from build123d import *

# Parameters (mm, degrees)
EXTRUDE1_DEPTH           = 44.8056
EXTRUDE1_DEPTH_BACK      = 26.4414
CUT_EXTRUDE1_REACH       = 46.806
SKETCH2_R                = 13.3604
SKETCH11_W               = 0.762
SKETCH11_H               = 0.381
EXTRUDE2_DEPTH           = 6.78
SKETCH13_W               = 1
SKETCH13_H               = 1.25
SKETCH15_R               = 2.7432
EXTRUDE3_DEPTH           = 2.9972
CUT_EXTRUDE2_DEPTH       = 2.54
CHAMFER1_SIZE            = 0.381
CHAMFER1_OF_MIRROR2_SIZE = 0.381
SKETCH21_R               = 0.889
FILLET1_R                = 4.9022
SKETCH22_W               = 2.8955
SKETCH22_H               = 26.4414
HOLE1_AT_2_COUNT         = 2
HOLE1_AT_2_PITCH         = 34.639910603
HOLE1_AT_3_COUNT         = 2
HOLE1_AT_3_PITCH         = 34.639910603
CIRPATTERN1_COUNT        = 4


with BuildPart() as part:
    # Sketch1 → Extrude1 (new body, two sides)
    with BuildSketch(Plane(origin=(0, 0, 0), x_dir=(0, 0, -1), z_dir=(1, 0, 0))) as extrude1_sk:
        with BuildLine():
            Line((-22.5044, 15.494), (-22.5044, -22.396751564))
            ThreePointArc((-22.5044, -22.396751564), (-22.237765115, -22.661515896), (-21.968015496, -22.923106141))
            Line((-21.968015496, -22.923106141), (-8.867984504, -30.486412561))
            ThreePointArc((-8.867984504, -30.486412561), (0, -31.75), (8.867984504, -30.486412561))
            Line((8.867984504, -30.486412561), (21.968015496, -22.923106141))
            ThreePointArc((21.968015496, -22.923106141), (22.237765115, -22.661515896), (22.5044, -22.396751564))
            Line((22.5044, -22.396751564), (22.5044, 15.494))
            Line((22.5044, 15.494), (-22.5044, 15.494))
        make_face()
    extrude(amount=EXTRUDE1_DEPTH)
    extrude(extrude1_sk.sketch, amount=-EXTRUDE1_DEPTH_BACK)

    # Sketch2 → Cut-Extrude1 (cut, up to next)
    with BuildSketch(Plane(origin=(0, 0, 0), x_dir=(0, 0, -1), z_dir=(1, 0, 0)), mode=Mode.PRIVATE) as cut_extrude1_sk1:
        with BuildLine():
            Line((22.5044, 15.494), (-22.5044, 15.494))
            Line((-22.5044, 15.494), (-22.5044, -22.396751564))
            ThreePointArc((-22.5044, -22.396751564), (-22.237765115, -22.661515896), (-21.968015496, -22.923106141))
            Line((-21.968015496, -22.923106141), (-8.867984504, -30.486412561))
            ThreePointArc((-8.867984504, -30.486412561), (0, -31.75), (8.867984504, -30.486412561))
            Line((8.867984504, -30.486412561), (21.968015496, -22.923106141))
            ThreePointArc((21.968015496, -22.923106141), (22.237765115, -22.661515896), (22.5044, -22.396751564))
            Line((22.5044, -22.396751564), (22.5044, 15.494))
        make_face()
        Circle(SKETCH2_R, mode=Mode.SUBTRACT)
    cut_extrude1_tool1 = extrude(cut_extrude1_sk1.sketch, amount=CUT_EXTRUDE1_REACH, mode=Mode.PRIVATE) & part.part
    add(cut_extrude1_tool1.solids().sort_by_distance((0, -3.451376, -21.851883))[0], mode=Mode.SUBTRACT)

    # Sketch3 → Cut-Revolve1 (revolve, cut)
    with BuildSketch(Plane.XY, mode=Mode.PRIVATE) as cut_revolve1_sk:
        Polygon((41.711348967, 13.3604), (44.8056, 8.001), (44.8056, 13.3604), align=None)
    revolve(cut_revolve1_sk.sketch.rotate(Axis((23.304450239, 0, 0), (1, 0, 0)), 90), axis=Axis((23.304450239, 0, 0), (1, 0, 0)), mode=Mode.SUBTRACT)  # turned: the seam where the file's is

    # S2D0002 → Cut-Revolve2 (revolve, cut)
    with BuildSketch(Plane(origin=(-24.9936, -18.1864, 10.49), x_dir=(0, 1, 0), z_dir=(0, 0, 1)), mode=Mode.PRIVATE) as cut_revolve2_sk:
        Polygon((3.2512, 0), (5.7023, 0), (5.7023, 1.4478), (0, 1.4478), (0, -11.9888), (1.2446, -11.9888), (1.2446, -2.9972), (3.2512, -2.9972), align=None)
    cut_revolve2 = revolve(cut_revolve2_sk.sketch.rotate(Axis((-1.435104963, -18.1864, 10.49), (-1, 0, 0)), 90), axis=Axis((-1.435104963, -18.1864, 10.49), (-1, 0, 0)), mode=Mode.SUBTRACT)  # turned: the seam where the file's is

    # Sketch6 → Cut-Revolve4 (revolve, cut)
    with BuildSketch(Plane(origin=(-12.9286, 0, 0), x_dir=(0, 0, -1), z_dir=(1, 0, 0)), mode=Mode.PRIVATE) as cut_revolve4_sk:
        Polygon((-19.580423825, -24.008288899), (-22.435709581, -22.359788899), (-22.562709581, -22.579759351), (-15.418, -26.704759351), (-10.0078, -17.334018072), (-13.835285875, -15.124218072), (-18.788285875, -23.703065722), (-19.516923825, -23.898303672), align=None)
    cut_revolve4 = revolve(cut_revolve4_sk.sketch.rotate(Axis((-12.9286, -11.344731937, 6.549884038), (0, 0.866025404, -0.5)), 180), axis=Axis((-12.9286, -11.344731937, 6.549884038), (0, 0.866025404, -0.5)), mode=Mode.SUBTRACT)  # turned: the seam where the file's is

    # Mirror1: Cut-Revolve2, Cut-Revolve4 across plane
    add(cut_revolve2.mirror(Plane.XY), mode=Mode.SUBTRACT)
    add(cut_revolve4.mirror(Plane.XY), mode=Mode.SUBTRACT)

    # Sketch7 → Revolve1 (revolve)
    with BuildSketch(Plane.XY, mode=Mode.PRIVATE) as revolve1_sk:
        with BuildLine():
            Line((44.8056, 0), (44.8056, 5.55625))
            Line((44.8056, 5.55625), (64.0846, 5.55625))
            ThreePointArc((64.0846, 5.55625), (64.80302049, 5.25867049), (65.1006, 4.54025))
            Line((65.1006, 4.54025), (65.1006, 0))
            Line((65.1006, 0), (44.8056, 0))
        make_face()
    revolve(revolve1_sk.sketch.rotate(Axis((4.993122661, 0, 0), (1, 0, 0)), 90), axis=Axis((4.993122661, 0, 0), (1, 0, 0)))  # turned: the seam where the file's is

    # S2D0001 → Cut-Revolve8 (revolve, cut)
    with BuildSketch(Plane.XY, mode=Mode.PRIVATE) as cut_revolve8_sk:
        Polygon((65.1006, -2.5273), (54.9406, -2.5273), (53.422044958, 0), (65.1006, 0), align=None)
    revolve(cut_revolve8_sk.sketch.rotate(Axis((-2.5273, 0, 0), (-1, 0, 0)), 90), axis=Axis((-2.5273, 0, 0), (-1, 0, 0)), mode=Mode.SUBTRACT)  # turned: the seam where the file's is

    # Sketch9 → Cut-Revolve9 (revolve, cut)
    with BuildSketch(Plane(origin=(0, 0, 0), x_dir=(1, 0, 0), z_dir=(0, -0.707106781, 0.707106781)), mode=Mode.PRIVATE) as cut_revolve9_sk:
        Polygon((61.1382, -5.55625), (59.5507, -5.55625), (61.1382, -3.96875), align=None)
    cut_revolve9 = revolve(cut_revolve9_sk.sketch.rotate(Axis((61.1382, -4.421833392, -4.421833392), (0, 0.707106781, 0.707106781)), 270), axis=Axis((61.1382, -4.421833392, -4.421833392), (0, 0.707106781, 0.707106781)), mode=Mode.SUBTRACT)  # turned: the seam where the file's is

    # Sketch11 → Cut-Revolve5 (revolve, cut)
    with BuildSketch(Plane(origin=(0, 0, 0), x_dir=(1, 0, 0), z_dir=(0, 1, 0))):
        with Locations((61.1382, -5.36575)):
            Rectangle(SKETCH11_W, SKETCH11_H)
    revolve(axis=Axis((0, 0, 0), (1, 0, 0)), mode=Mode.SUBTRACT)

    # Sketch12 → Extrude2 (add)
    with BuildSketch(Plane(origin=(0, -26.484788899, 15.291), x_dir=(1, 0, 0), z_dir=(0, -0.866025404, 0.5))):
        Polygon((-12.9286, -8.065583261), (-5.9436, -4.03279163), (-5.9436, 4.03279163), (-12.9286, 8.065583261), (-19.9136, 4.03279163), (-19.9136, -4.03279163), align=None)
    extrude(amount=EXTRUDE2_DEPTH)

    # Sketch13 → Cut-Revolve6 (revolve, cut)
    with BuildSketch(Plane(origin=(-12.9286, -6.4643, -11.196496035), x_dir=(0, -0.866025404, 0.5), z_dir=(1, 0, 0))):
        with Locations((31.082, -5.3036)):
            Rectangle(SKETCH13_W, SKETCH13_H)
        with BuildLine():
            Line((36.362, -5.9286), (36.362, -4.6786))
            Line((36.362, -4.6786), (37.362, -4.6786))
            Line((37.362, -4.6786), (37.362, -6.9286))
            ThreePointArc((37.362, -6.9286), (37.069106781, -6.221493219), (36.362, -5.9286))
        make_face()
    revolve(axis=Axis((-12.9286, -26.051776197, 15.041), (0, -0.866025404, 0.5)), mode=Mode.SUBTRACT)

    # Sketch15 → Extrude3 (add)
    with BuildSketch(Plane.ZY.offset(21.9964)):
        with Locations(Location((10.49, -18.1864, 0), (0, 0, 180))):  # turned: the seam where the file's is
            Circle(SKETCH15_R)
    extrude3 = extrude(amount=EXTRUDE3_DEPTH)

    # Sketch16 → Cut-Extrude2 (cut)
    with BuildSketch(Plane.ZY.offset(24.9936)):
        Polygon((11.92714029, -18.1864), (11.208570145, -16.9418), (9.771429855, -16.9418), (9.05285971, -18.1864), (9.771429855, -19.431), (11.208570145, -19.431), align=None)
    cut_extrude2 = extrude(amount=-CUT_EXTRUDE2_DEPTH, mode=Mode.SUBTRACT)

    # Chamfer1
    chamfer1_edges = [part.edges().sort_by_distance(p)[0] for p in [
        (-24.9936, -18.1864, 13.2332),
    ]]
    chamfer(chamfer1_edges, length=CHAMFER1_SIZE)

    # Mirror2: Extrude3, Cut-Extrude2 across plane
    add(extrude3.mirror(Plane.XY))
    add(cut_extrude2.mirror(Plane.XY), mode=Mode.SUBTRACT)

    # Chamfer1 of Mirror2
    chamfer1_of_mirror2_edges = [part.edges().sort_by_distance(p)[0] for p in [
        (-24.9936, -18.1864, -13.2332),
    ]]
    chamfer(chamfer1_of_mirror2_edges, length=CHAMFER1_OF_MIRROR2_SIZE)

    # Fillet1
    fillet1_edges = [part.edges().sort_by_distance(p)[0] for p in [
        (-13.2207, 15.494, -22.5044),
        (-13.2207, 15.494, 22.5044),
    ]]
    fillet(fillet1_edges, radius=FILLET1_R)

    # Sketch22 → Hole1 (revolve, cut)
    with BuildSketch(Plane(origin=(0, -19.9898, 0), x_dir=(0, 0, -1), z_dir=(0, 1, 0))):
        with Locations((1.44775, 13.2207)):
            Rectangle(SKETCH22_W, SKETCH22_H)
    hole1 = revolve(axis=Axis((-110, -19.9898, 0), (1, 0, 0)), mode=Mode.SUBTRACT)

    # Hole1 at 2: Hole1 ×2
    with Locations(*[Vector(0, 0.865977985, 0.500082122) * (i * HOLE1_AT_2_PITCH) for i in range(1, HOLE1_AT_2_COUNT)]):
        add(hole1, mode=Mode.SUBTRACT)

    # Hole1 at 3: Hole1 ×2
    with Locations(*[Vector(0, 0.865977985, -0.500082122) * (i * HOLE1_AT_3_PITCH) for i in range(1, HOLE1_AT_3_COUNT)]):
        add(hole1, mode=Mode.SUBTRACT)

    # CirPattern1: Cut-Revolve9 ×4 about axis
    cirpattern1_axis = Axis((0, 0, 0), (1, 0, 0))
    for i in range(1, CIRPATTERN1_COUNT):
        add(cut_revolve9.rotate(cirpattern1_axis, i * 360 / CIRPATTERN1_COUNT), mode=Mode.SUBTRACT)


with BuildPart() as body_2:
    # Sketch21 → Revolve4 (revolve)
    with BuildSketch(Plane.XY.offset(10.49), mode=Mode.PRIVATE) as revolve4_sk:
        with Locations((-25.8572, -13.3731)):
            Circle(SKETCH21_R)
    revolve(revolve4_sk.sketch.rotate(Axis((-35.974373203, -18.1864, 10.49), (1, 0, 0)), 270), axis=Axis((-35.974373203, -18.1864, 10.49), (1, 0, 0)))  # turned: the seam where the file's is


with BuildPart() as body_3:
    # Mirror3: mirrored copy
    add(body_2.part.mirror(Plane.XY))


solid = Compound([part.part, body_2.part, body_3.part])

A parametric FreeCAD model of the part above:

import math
import FreeCAD as App
import Part
import Sketcher
Q = App.Units.Quantity


def edges_at(feature, points):
    """Names of the edges that pass closest to the given points."""
    edges = feature.Shape.Edges
    near = lambda p: min(range(len(edges)), key=lambda i: edges[i].distToShape(Part.Vertex(*p))[0])
    return sorted({f"Edge{near(p) + 1}" for p in points})

doc = App.newDocument("Part")
body = doc.addObject("PartDesign::Body", "Body")

# Sketch on YZ plane
sketch1 = body.newObject("Sketcher::SketchObject", "Sketch")
sketch1.AttachmentSupport = (doc.getObject("YZ_Plane"), [""])
sketch1.MapMode = "FlatFace"
sketch1.addGeometry(Part.LineSegment(App.Vector(15.494, 22.5044, 0), App.Vector(-22.396752, 22.5044, 0)), False)
sketch1.addGeometry(Part.ArcOfCircle(Part.Circle(App.Vector(-0.000005, 0.000005, 0), App.Vector(0, 0, 1), 31.749993), math.radians(134.862636), math.radians(136.218825)), False)
sketch1.addGeometry(Part.LineSegment(App.Vector(-22.923106, 21.968015, 0), App.Vector(-30.486413, 8.867985, 0)), False)
sketch1.addGeometry(Part.ArcOfCircle(Part.Circle(App.Vector(0, 0, 0), App.Vector(0, 0, 1), 31.75), math.radians(163.781175), math.radians(196.218825)), False)
sketch1.addGeometry(Part.LineSegment(App.Vector(-30.486413, -8.867985, 0), App.Vector(-22.923106, -21.968015, 0)), False)
sketch1.addGeometry(Part.ArcOfCircle(Part.Circle(App.Vector(-0.000005, -0.000005, 0), App.Vector(0, 0, 1), 31.749993), math.radians(-136.218825), math.radians(-134.862636)), False)
sketch1.addGeometry(Part.LineSegment(App.Vector(-22.396752, -22.5044, 0), App.Vector(15.494, -22.5044, 0)), False)
sketch1.addGeometry(Part.LineSegment(App.Vector(15.494, -22.5044, 0), App.Vector(15.494, 22.5044, 0)), False)
sketch1.addConstraint(Sketcher.Constraint("Coincident", 0, 2, 1, 1))
sketch1.addConstraint(Sketcher.Constraint("Coincident", 1, 2, 2, 1))
sketch1.addConstraint(Sketcher.Constraint("Coincident", 2, 2, 3, 1))
sketch1.addConstraint(Sketcher.Constraint("Coincident", 3, 2, 4, 1))
sketch1.addConstraint(Sketcher.Constraint("Coincident", 4, 2, 5, 1))
sketch1.addConstraint(Sketcher.Constraint("Coincident", 5, 2, 6, 1))
sketch1.addConstraint(Sketcher.Constraint("Coincident", 6, 2, 7, 1))
sketch1.addConstraint(Sketcher.Constraint("Coincident", 7, 2, 0, 1))
sketch1.addConstraint(Sketcher.Constraint("Horizontal", 0))
sketch1.addConstraint(Sketcher.Constraint("Horizontal", 6))
sketch1.addConstraint(Sketcher.Constraint("Vertical", 7))
sketch1.addConstraint(Sketcher.Constraint("Coincident", 1, 3, -1, 1))
sketch1.addConstraint(Sketcher.Constraint("Coincident", 3, 3, -1, 1))
sketch1.addConstraint(Sketcher.Constraint("Coincident", 5, 3, -1, 1))
sketch1.addConstraint(Sketcher.Constraint("Radius", 3, Q("1.25 in")))
sketch1.addConstraint(Sketcher.Constraint("DistanceY", 7, 1, 7, 2, Q("1.772 in")))
sketch1.addConstraint(Sketcher.Constraint("DistanceX", -1, 1, 6, 2, Q("0.61 in")))
sketch1.addConstraint(Sketcher.Constraint("DistanceY", -1, 1, 0, 2, Q("0.886 in")))
sketch1.addConstraint(Sketcher.Constraint("Radius", 1, 31.749993))
sketch1.addConstraint(Sketcher.Constraint("Radius", 5, 31.749993))
sketch1.addConstraint(Sketcher.Constraint("DistanceX", 1, 2, 1, 3, 22.923101))
sketch1.addConstraint(Sketcher.Constraint("DistanceY", 3, 2, 1, 2, 30.836))
sketch1.addConstraint(Sketcher.Constraint("DistanceX", 4, 2, 5, 3, 22.923101))
sketch1.addConstraint(Sketcher.Constraint("DistanceY", 4, 2, 2, 2, 30.836))
pad1 = body.newObject("PartDesign::Pad", "Pad")
pad1.Profile = sketch1
pad1.Type = "TwoLengths"
pad1.Length = Q("1.764 in")
pad1.Length2 = Q("1.041 in")

# Sketch on YZ plane
sketch2 = body.newObject("Sketcher::SketchObject", "Sketch001")
sketch2.AttachmentSupport = (doc.getObject("YZ_Plane"), [""])
sketch2.MapMode = "FlatFace"
sketch2.addGeometry(Part.LineSegment(App.Vector(15.494, -22.5044, 0), App.Vector(15.494, 22.5044, 0)), False)
sketch2.addGeometry(Part.LineSegment(App.Vector(15.494, 22.5044, 0), App.Vector(-22.396752, 22.5044, 0)), False)
sketch2.addGeometry(Part.ArcOfCircle(Part.Circle(App.Vector(-0.000005, 0.000005, 0), App.Vector(0, 0, 1), 31.749993), math.radians(134.862636), math.radians(136.218825)), False)
sketch2.addGeometry(Part.LineSegment(App.Vector(-22.923106, 21.968015, 0), App.Vector(-30.486413, 8.867985, 0)), False)
sketch2.addGeometry(Part.ArcOfCircle(Part.Circle(App.Vector(0, 0, 0), App.Vector(0, 0, 1), 31.75), math.radians(163.781175), math.radians(196.218825)), False)
sketch2.addGeometry(Part.LineSegment(App.Vector(-30.486413, -8.867985, 0), App.Vector(-22.923106, -21.968015, 0)), False)
sketch2.addGeometry(Part.ArcOfCircle(Part.Circle(App.Vector(-0.000005, -0.000005, 0), App.Vector(0, 0, 1), 31.749993), math.radians(-136.218825), math.radians(-134.862636)), False)
sketch2.addGeometry(Part.LineSegment(App.Vector(-22.396752, -22.5044, 0), App.Vector(15.494, -22.5044, 0)), False)
sketch2.addGeometry(Part.Circle(App.Vector(0, 0, 0), App.Vector(0, 0, 1), 13.3604), False)
sketch2.addConstraint(Sketcher.Constraint("Coincident", 0, 2, 1, 1))
sketch2.addConstraint(Sketcher.Constraint("Coincident", 1, 2, 2, 1))
sketch2.addConstraint(Sketcher.Constraint("Coincident", 2, 2, 3, 1))
sketch2.addConstraint(Sketcher.Constraint("Coincident", 3, 2, 4, 1))
sketch2.addConstraint(Sketcher.Constraint("Coincident", 4, 2, 5, 1))
sketch2.addConstraint(Sketcher.Constraint("Coincident", 5, 2, 6, 1))
sketch2.addConstraint(Sketcher.Constraint("Coincident", 6, 2, 7, 1))
sketch2.addConstraint(Sketcher.Constraint("Coincident", 7, 2, 0, 1))
sketch2.addConstraint(Sketcher.Constraint("Vertical", 0))
sketch2.addConstraint(Sketcher.Constraint("Horizontal", 1))
sketch2.addConstraint(Sketcher.Constraint("Horizontal", 7))
sketch2.addConstraint(Sketcher.Constraint("Coincident", 2, 3, -1, 1))
sketch2.addConstraint(Sketcher.Constraint("Coincident", 4, 3, -1, 1))
sketch2.addConstraint(Sketcher.Constraint("Coincident", 6, 3, -1, 1))
sketch2.addConstraint(Sketcher.Constraint("Coincident", 8, 3, -1, 1))
sketch2.addConstraint(Sketcher.Constraint("Radius", 4, Q("1.25 in")))
sketch2.addConstraint(Sketcher.Constraint("Diameter", 8, Q("1.052 in")))
sketch2.addConstraint(Sketcher.Constraint("DistanceY", 0, 1, 0, 2, Q("1.772 in")))
sketch2.addConstraint(Sketcher.Constraint("DistanceX", -1, 1, 0, 2, Q("0.61 in")))
sketch2.addConstraint(Sketcher.Constraint("DistanceY", -1, 1, 0, 2, Q("0.886 in")))
sketch2.addConstraint(Sketcher.Constraint("Radius", 2, 31.749993))
sketch2.addConstraint(Sketcher.Constraint("Radius", 6, 31.749993))
sketch2.addConstraint(Sketcher.Constraint("DistanceX", 2, 2, 2, 3, 22.923101))
sketch2.addConstraint(Sketcher.Constraint("DistanceY", 4, 2, 2, 2, 30.836))
sketch2.addConstraint(Sketcher.Constraint("DistanceX", 5, 2, 6, 3, 22.923101))
sketch2.addConstraint(Sketcher.Constraint("DistanceY", 5, 2, 3, 2, 30.836))
pocket1 = body.newObject("PartDesign::Pocket", "Pocket")
pocket1.Profile = sketch2
pocket1.Type = "UpToFirst"
pocket1.Reversed = True

# Sketch on XY plane
sketch3 = body.newObject("Sketcher::SketchObject", "Sketch002")
sketch3.AttachmentSupport = (doc.getObject("XY_Plane"), [""])
sketch3.MapMode = "FlatFace"
sketch3.addGeometry(Part.LineSegment(App.Vector(41.7, 13.4, 0), App.Vector(44.8, 8, 0)), False)
sketch3.addGeometry(Part.LineSegment(App.Vector(44.8, 8, 0), App.Vector(44.8, 13.4, 0)), False)
sketch3.addGeometry(Part.LineSegment(App.Vector(44.8, 13.4, 0), App.Vector(41.7, 13.4, 0)), False)
sketch3.addConstraint(Sketcher.Constraint("Coincident", 0, 2, 1, 1))
sketch3.addConstraint(Sketcher.Constraint("Coincident", 1, 2, 2, 1))
sketch3.addConstraint(Sketcher.Constraint("Coincident", 2, 2, 0, 1))
sketch3.addConstraint(Sketcher.Constraint("Vertical", 1))
sketch3.addConstraint(Sketcher.Constraint("Horizontal", 2))
sketch3.addConstraint(Sketcher.Constraint("Angle", 0, Q("-60 deg")))
sketch3.addConstraint(Sketcher.Constraint("DistanceY", 1, 1, 1, 2, Q("0.211 in")))
sketch3.addConstraint(Sketcher.Constraint("DistanceX", -1, 1, 0, 2, Q("1.764 in")))
sketch3.addConstraint(Sketcher.Constraint("DistanceY", -1, 1, 0, 2, Q("0.315 in")))
groove = body.newObject("PartDesign::Groove", "Groove")
groove.Profile = sketch3
groove.ReferenceAxis = (sketch3, ["H_Axis"])
groove.Angle = 360

# Sketch on XY plane
sketch4 = body.newObject("Sketcher::SketchObject", "Sketch003")
sketch4.AttachmentSupport = (doc.getObject("XY_Plane"), [""])
sketch4.MapMode = "FlatFace"
sketch4.AttachmentOffset = App.Placement(App.Vector(0, 0, 10.49), App.Rotation())
sketch4.addGeometry(Part.LineSegment(App.Vector(-25, -14.9, 0), App.Vector(-25, -12.5, 0)), False)
sketch4.addGeometry(Part.LineSegment(App.Vector(-25, -12.5, 0), App.Vector(-26.4, -12.5, 0)), False)
sketch4.addGeometry(Part.LineSegment(App.Vector(-26.4, -12.5, 0), App.Vector(-26.4, -18.2, 0)), False)
sketch4.addGeometry(Part.LineSegment(App.Vector(-26.4, -18.2, 0), App.Vector(-13, -18.2, 0)), False)
sketch4.addGeometry(Part.LineSegment(App.Vector(-13, -18.2, 0), App.Vector(-13, -16.9, 0)), False)
sketch4.addGeometry(Part.LineSegment(App.Vector(-13, -16.9, 0), App.Vector(-22, -16.9, 0)), False)
sketch4.addGeometry(Part.LineSegment(App.Vector(-22, -16.9, 0), App.Vector(-22, -14.9, 0)), False)
sketch4.addGeometry(Part.LineSegment(App.Vector(-22, -14.9, 0), App.Vector(-25, -14.9, 0)), False)
sketch4.addGeometry(Part.LineSegment(App.Vector(-13, -18.2, 0), App.Vector(-26.4, -18.2, 0)), True)  # axis
sketch4.addConstraint(Sketcher.Constraint("Coincident", 0, 2, 1, 1))
sketch4.addConstraint(Sketcher.Constraint("Coincident", 1, 2, 2, 1))
sketch4.addConstraint(Sketcher.Constraint("Coincident", 2, 2, 3, 1))
sketch4.addConstraint(Sketcher.Constraint("Coincident", 3, 2, 4, 1))
sketch4.addConstraint(Sketcher.Constraint("Coincident", 4, 2, 5, 1))
sketch4.addConstraint(Sketcher.Constraint("Coincident", 5, 2, 6, 1))
sketch4.addConstraint(Sketcher.Constraint("Coincident", 6, 2, 7, 1))
sketch4.addConstraint(Sketcher.Constraint("Coincident", 7, 2, 0, 1))
sketch4.addConstraint(Sketcher.Constraint("Vertical", 0))
sketch4.addConstraint(Sketcher.Constraint("Horizontal", 1))
sketch4.addConstraint(Sketcher.Constraint("Vertical", 2))
sketch4.addConstraint(Sketcher.Constraint("Horizontal", 3))
sketch4.addConstraint(Sketcher.Constraint("Vertical", 4))
sketch4.addConstraint(Sketcher.Constraint("Horizontal", 5))
sketch4.addConstraint(Sketcher.Constraint("Vertical", 6))
sketch4.addConstraint(Sketcher.Constraint("Horizontal", 7))
sketch4.addConstraint(Sketcher.Constraint("Horizontal", 8))
sketch4.addConstraint(Sketcher.Constraint("Coincident", 8, 1, 3, 2))
sketch4.addConstraint(Sketcher.Constraint("Vertical", 1, 2, 8, 2))
sketch4.addConstraint(Sketcher.Constraint("DistanceX", 1, 2, 1, 1, Q("0.057 in")))
sketch4.addConstraint(Sketcher.Constraint("DistanceX", 3, 1, 3, 2, Q("0.529 in")))
sketch4.addConstraint(Sketcher.Constraint("DistanceX", 5, 2, 5, 1, Q("0.354 in")))
sketch4.addConstraint(Sketcher.Constraint("DistanceY", 4, 1, 4, 2, Q("0.049 in")))
sketch4.addConstraint(Sketcher.Constraint("DistanceY", 6, 1, 6, 2, Q("0.079 in")))
sketch4.addConstraint(Sketcher.Constraint("DistanceY", 0, 1, 0, 2, Q("0.0965 in")))
sketch4.addConstraint(Sketcher.Constraint("DistanceX", 0, 2, -1, 1, Q("0.984 in")))
sketch4.addConstraint(Sketcher.Constraint("DistanceY", 2, 2, -1, 1, Q("0.716 in")))
groove2 = body.newObject("PartDesign::Groove", "Groove001")
groove2.Profile = sketch4
groove2.ReferenceAxis = (sketch4, ["Axis0"])
groove2.Angle = 360

# Sketch on YZ plane
sketch5 = body.newObject("Sketcher::SketchObject", "Sketch004")
sketch5.AttachmentSupport = (doc.getObject("YZ_Plane"), [""])
sketch5.MapMode = "FlatFace"
sketch5.AttachmentOffset = App.Placement(App.Vector(0, 0, -0.509 * 25.4), App.Rotation())
sketch5.addGeometry(Part.LineSegment(App.Vector(-24.01, 19.58, 0), App.Vector(-22.36, 22.44, 0)), False)
sketch5.addGeometry(Part.LineSegment(App.Vector(-22.36, 22.44, 0), App.Vector(-22.58, 22.56, 0)), False)
sketch5.addGeometry(Part.LineSegment(App.Vector(-22.58, 22.56, 0), App.Vector(-26.7, 15.42, 0)), False)
sketch5.addGeometry(Part.LineSegment(App.Vector(-26.7, 15.42, 0), App.Vector(-17.33, 10.01, 0)), False)
sketch5.addGeometry(Part.LineSegment(App.Vector(-17.33, 10.01, 0), App.Vector(-15.12, 13.84, 0)), False)
sketch5.addGeometry(Part.LineSegment(App.Vector(-15.12, 13.84, 0), App.Vector(-23.7, 18.79, 0)), False)
sketch5.addGeometry(Part.LineSegment(App.Vector(-23.7, 18.79, 0), App.Vector(-23.9, 19.52, 0)), False)
sketch5.addGeometry(Part.LineSegment(App.Vector(-23.9, 19.52, 0), App.Vector(-24.01, 19.58, 0)), False)
sketch5.addGeometry(Part.LineSegment(App.Vector(-26.7, 15.42, 0), App.Vector(-17.33, 10.01, 0)), True)  # axis
sketch5.addConstraint(Sketcher.Constraint("Coincident", 0, 2, 1, 1))
sketch5.addConstraint(Sketcher.Constraint("Coincident", 1, 2, 2, 1))
sketch5.addConstraint(Sketcher.Constraint("Coincident", 2, 2, 3, 1))
sketch5.addConstraint(Sketcher.Constraint("Coincident", 3, 2, 4, 1))
sketch5.addConstraint(Sketcher.Constraint("Coincident", 4, 2, 5, 1))
sketch5.addConstraint(Sketcher.Constraint("Coincident", 5, 2, 6, 1))
sketch5.addConstraint(Sketcher.Constraint("Coincident", 6, 2, 7, 1))
sketch5.addConstraint(Sketcher.Constraint("Coincident", 7, 2, 0, 1))
sketch5.addConstraint(Sketcher.Constraint("Coincident", 8, 1, 2, 2))
sketch5.addConstraint(Sketcher.Constraint("Coincident", 8, 2, 3, 2))
sketch5.addConstraint(Sketcher.Constraint("Perpendicular", 0, 1))
sketch5.addConstraint(Sketcher.Constraint("Perpendicular", 1, 2))
sketch5.addConstraint(Sketcher.Constraint("Perpendicular", 2, 3))
sketch5.addConstraint(Sketcher.Constraint("Perpendicular", 3, 4))
sketch5.addConstraint(Sketcher.Constraint("Perpendicular", 4, 5))
sketch5.addConstraint(Sketcher.Constraint("Parallel", 5, 7))
sketch5.addConstraint(Sketcher.Constraint("Angle", 0, Q("60 deg")))
sketch5.addConstraint(Sketcher.Constraint("Angle", 6, Q("105 deg")))
sketch5.addConstraint(Sketcher.Constraint("Distance", 1, Q("0.01 in")))
sketch5.addConstraint(Sketcher.Constraint("Distance", 5, Q("0.39 in")))
sketch5.addConstraint(Sketcher.Constraint("Distance", 3, Q("0.426 in")))
sketch5.addConstraint(Sketcher.Constraint("Distance", 4, Q("0.174 in")))
sketch5.addConstraint(Sketcher.Constraint("Distance", 7, Q("0.005 in")))
sketch5.addConstraint(Sketcher.Constraint("Distance", 0, 3.297))
sketch5.addConstraint(Sketcher.Constraint("DistanceY", -1, 1, 2, 2, 15.418))
sketch5.addConstraint(Sketcher.Constraint("DistanceX", 0, 2, -1, 1, 22.359789))
groove3 = body.newObject("PartDesign::Groove", "Groove002")
groove3.Profile = sketch5
groove3.ReferenceAxis = (sketch5, ["Axis0"])
groove3.Angle = 360
doc.recompute()

mirrored = body.newObject("PartDesign::Mirrored", "Mirrored")
mirrored.Originals = [groove2, groove3]
mirrored.MirrorPlane = (doc.getObject("XY_Plane"), [""])
body.Tip = mirrored

# Sketch on XY plane
sketch6 = body.newObject("Sketcher::SketchObject", "Sketch005")
sketch6.AttachmentSupport = (doc.getObject("XY_Plane"), [""])
sketch6.MapMode = "FlatFace"
sketch6.addGeometry(Part.LineSegment(App.Vector(44.8, 5.6, 0), App.Vector(44.8, 0, 0)), False)
sketch6.addGeometry(Part.LineSegment(App.Vector(44.8, 0, 0), App.Vector(65.1, 0, 0)), False)
sketch6.addGeometry(Part.LineSegment(App.Vector(65.1, 0, 0), App.Vector(65.1, 4.5, 0)), False)
sketch6.addGeometry(Part.ArcOfCircle(Part.Circle(App.Vector(64.1, 4.5, 0), App.Vector(0, 0, 1), 1), math.radians(0), math.radians(90)), False)
sketch6.addGeometry(Part.LineSegment(App.Vector(64.1, 5.6, 0), App.Vector(44.8, 5.6, 0)), False)
sketch6.addConstraint(Sketcher.Constraint("Coincident", 0, 2, 1, 1))
sketch6.addConstraint(Sketcher.Constraint("Coincident", 1, 2, 2, 1))
sketch6.addConstraint(Sketcher.Constraint("Tangent", 2, 2, 3, 1))
sketch6.addConstraint(Sketcher.Constraint("Tangent", 3, 2, 4, 1))
sketch6.addConstraint(Sketcher.Constraint("Coincident", 4, 2, 0, 1))
sketch6.addConstraint(Sketcher.Constraint("Vertical", 0))
sketch6.addConstraint(Sketcher.Constraint("Horizontal", 1))
sketch6.addConstraint(Sketcher.Constraint("Vertical", 2))
sketch6.addConstraint(Sketcher.Constraint("Horizontal", 4))
sketch6.addConstraint(Sketcher.Constraint("PointOnObject", 0, 2, -1))
sketch6.addConstraint(Sketcher.Constraint("Radius", 3, Q("0.04 in")))
sketch6.addConstraint(Sketcher.Constraint("DistanceY", 0, 2, 0, 1, Q("0.21875 in")))
sketch6.addConstraint(Sketcher.Constraint("DistanceX", -1, 1, 0, 2, Q("1.764 in")))
sketch6.addConstraint(Sketcher.Constraint("DistanceX", 1, 1, 1, 2, 20.295))
revolution = body.newObject("PartDesign::Revolution", "Revolution")
revolution.Profile = sketch6
revolution.ReferenceAxis = (sketch6, ["H_Axis"])
revolution.Angle = 360

# Sketch on XY plane
sketch7 = body.newObject("Sketcher::SketchObject", "Sketch006")
sketch7.AttachmentSupport = (doc.getObject("XY_Plane"), [""])
sketch7.MapMode = "FlatFace"
sketch7.addGeometry(Part.LineSegment(App.Vector(54.9, -2.5, 0), App.Vector(65.1, -2.5, 0)), False)
sketch7.addGeometry(Part.LineSegment(App.Vector(65.1, -2.5, 0), App.Vector(65.1, 0, 0)), False)
sketch7.addGeometry(Part.LineSegment(App.Vector(65.1, 0, 0), App.Vector(53.4, 0, 0)), False)
sketch7.addGeometry(Part.LineSegment(App.Vector(53.4, 0, 0), App.Vector(54.9, -2.5, 0)), False)
sketch7.addConstraint(Sketcher.Constraint("Coincident", 0, 2, 1, 1))
sketch7.addConstraint(Sketcher.Constraint("Coincident", 1, 2, 2, 1))
sketch7.addConstraint(Sketcher.Constraint("Coincident", 2, 2, 3, 1))
sketch7.addConstraint(Sketcher.Constraint("Coincident", 3, 2, 0, 1))
sketch7.addConstraint(Sketcher.Constraint("Horizontal", 0))
sketch7.addConstraint(Sketcher.Constraint("Vertical", 1))
sketch7.addConstraint(Sketcher.Constraint("Horizontal", 2))
sketch7.addConstraint(Sketcher.Constraint("PointOnObject", 1, 2, -1))
sketch7.addConstraint(Sketcher.Constraint("DistanceX", 0, 1, 0, 2, Q("0.4 in")))
sketch7.addConstraint(Sketcher.Constraint("Angle", 3, Q("-59 deg")))
sketch7.addConstraint(Sketcher.Constraint("DistanceY", 1, 1, 1, 2, Q("0.0995 in")))
sketch7.addConstraint(Sketcher.Constraint("DistanceX", -1, 1, 0, 2, 65.1006))
groove4 = body.newObject("PartDesign::Groove", "Groove003")
groove4.Profile = sketch7
groove4.ReferenceAxis = (sketch7, ["H_Axis"])
groove4.Angle = 360

# Sketch on an angled plane
sketch8 = body.newObject("Sketcher::SketchObject", "Sketch007")
sketch8.Placement = App.Placement(App.Vector(0, 0, 0), App.Rotation(App.Vector(1, 0, 0), App.Vector(0, 0.707106781, 0.707106781), App.Vector(0, -0.707106781, 0.707106781), "ZXY"))
sketch8.addGeometry(Part.LineSegment(App.Vector(59.6, -5.6, 0), App.Vector(61.1, -5.6, 0)), False)
sketch8.addGeometry(Part.LineSegment(App.Vector(61.1, -5.6, 0), App.Vector(61.1, -4, 0)), False)
sketch8.addGeometry(Part.LineSegment(App.Vector(61.1, -4, 0), App.Vector(59.6, -5.6, 0)), False)
sketch8.addGeometry(Part.LineSegment(App.Vector(61.1, -5.6, 0), App.Vector(61.1, -4, 0)), True)  # axis
sketch8.addConstraint(Sketcher.Constraint("Coincident", 0, 2, 1, 1))
sketch8.addConstraint(Sketcher.Constraint("Coincident", 1, 2, 2, 1))
sketch8.addConstraint(Sketcher.Constraint("Coincident", 2, 2, 0, 1))
sketch8.addConstraint(Sketcher.Constraint("Horizontal", 0))
sketch8.addConstraint(Sketcher.Constraint("Vertical", 1))
sketch8.addConstraint(Sketcher.Constraint("Vertical", 3))
sketch8.addConstraint(Sketcher.Constraint("Coincident", 3, 1, 0, 2))
sketch8.addConstraint(Sketcher.Constraint("Equal", 0, 1))
sketch8.addConstraint(Sketcher.Constraint("Equal", 1, 3))
sketch8.addConstraint(Sketcher.Constraint("DistanceX", 0, 1, 0, 2, Q("0.0625 in")))
sketch8.addConstraint(Sketcher.Constraint("DistanceY", 0, 2, -1, 1, Q("0.21875 in")))
sketch8.addConstraint(Sketcher.Constraint("DistanceX", -1, 1, 0, 2, 61.1382))
groove5 = body.newObject("PartDesign::Groove", "Groove004")
groove5.Profile = sketch8
groove5.ReferenceAxis = (sketch8, ["Axis0"])
groove5.Angle = 360

# Sketch on XZ plane
sketch9 = body.newObject("Sketcher::SketchObject", "Sketch008")
sketch9.AttachmentSupport = (doc.getObject("XZ_Plane"), [""])
sketch9.MapMode = "FlatFace"
sketch9.addGeometry(Part.LineSegment(App.Vector(60.76, 5.18, 0), App.Vector(60.76, 5.56, 0)), False)
sketch9.addGeometry(Part.LineSegment(App.Vector(60.76, 5.56, 0), App.Vector(61.52, 5.56, 0)), False)
sketch9.addGeometry(Part.LineSegment(App.Vector(61.52, 5.56, 0), App.Vector(61.52, 5.18, 0)), False)
sketch9.addGeometry(Part.LineSegment(App.Vector(61.52, 5.18, 0), App.Vector(60.76, 5.18, 0)), False)
sketch9.addConstraint(Sketcher.Constraint("Coincident", 0, 2, 1, 1))
sketch9.addConstraint(Sketcher.Constraint("Coincident", 1, 2, 2, 1))
sketch9.addConstraint(Sketcher.Constraint("Coincident", 2, 2, 3, 1))
sketch9.addConstraint(Sketcher.Constraint("Coincident", 3, 2, 0, 1))
sketch9.addConstraint(Sketcher.Constraint("Vertical", 0))
sketch9.addConstraint(Sketcher.Constraint("Horizontal", 1))
sketch9.addConstraint(Sketcher.Constraint("Vertical", 2))
sketch9.addConstraint(Sketcher.Constraint("Horizontal", 3))
sketch9.addConstraint(Sketcher.Constraint("DistanceX", 1, 1, 1, 2, Q("0.03 in")))
sketch9.addConstraint(Sketcher.Constraint("DistanceY", 0, 1, 0, 2, Q("0.015 in")))
sketch9.addConstraint(Sketcher.Constraint("DistanceY", -1, 1, 0, 2, Q("0.21875 in")))
sketch9.addConstraint(Sketcher.Constraint("DistanceX", -1, 1, 0, 2, 60.7572))
groove6 = body.newObject("PartDesign::Groove", "Groove005")
groove6.Profile = sketch9
groove6.ReferenceAxis = (sketch9, ["H_Axis"])
groove6.Angle = 360

# Sketch on an angled plane
sketch10 = body.newObject("Sketcher::SketchObject", "Sketch009")
sketch10.Placement = App.Placement(App.Vector(0, -26.484789, 15.291), App.Rotation(App.Vector(1, 0, 0), App.Vector(0, 0.5, 0.866025404), App.Vector(0, -0.866025404, 0.5), "ZXY"))
sketch10.addGeometry(Part.LineSegment(App.Vector(-13, -8, 0), App.Vector(-6, -4, 0)), False)
sketch10.addGeometry(Part.LineSegment(App.Vector(-6, -4, 0), App.Vector(-6, 4, 0)), False)
sketch10.addGeometry(Part.LineSegment(App.Vector(-6, 4, 0), App.Vector(-13, 8, 0)), False)
sketch10.addGeometry(Part.LineSegment(App.Vector(-13, 8, 0), App.Vector(-20, 4, 0)), False)
sketch10.addGeometry(Part.LineSegment(App.Vector(-20, 4, 0), App.Vector(-20, -4, 0)), False)
sketch10.addGeometry(Part.LineSegment(App.Vector(-20, -4, 0), App.Vector(-13, -8, 0)), False)
sketch10.addConstraint(Sketcher.Constraint("Coincident", 0, 2, 1, 1))
sketch10.addConstraint(Sketcher.Constraint("Coincident", 1, 2, 2, 1))
sketch10.addConstraint(Sketcher.Constraint("Coincident", 2, 2, 3, 1))
sketch10.addConstraint(Sketcher.Constraint("Coincident", 3, 2, 4, 1))
sketch10.addConstraint(Sketcher.Constraint("Coincident", 4, 2, 5, 1))
sketch10.addConstraint(Sketcher.Constraint("Coincident", 5, 2, 0, 1))
sketch10.addConstraint(Sketcher.Constraint("Vertical", 1))
sketch10.addConstraint(Sketcher.Constraint("Vertical", 4))
sketch10.addConstraint(Sketcher.Constraint("Symmetric", 2, 2, 5, 2, -1))
sketch10.addConstraint(Sketcher.Constraint("Parallel", 0, 3))
sketch10.addConstraint(Sketcher.Constraint("Parallel", 2, 5))
sketch10.addConstraint(Sketcher.Constraint("Horizontal", 1, 2, 3, 2))
sketch10.addConstraint(Sketcher.Constraint("Horizontal", 0, 2, 4, 2))
sketch10.addConstraint(Sketcher.Constraint("Angle", 0, Q("30 deg")))
sketch10.addConstraint(Sketcher.Constraint("DistanceX", 3, 2, 1, 2, Q("0.55 in")))
sketch10.addConstraint(Sketcher.Constraint("DistanceX", 0, 2, -1, 1, Q("0.234 in")))
sketch10.addConstraint(Sketcher.Constraint("DistanceY", 1, 1, 1, 2, 8.065583))
pad2 = body.newObject("PartDesign::Pad", "Pad001")
pad2.Profile = sketch10
pad2.Length = 6.78

# Sketch on YZ plane
sketch11 = body.newObject("Sketcher::SketchObject", "Sketch010")
sketch11.AttachmentSupport = (doc.getObject("YZ_Plane"), [""])
sketch11.MapMode = "FlatFace"
sketch11.AttachmentOffset = App.Placement(App.Vector(0, 0, -0.509 * 25.4), App.Rotation())
sketch11.addGeometry(Part.LineSegment(App.Vector(-30.6, 8.1, 0), App.Vector(-30, 9.2, 0)), False)
sketch11.addGeometry(Part.LineSegment(App.Vector(-30, 9.2, 0), App.Vector(-30.9, 9.7, 0)), False)
sketch11.addGeometry(Part.LineSegment(App.Vector(-30.9, 9.7, 0), App.Vector(-31.5, 8.6, 0)), False)
sketch11.addGeometry(Part.LineSegment(App.Vector(-31.5, 8.6, 0), App.Vector(-30.6, 8.1, 0)), False)
sketch11.addGeometry(Part.LineSegment(App.Vector(-35.6, 11, 0), App.Vector(-35, 12.1, 0)), False)
sketch11.addGeometry(Part.ArcOfCircle(Part.Circle(App.Vector(-34.5, 13, 0), App.Vector(0, 0, 1), 1), math.radians(150), math.radians(240)), False)
sketch11.addGeometry(Part.LineSegment(App.Vector(-35.4, 13.5, 0), App.Vector(-36.5, 11.5, 0)), False)
sketch11.addGeometry(Part.LineSegment(App.Vector(-36.5, 11.5, 0), App.Vector(-35.6, 11, 0)), False)
sketch11.addGeometry(Part.LineSegment(App.Vector(-26.5, 15.3, 0), App.Vector(-32.4, 18.7, 0)), True)  # axis
sketch11.addConstraint(Sketcher.Constraint("Coincident", 0, 2, 1, 1))
sketch11.addConstraint(Sketcher.Constraint("Coincident", 1, 2, 2, 1))
sketch11.addConstraint(Sketcher.Constraint("Coincident", 2, 2, 3, 1))
sketch11.addConstraint(Sketcher.Constraint("Coincident", 3, 2, 0, 1))
sketch11.addConstraint(Sketcher.Constraint("Coincident", 4, 2, 5, 2))
sketch11.addConstraint(Sketcher.Constraint("Tangent", 5, 1, 6, 1))
sketch11.addConstraint(Sketcher.Constraint("Coincident", 6, 2, 7, 1))
sketch11.addConstraint(Sketcher.Constraint("Coincident", 7, 2, 4, 1))
sketch11.addConstraint(Sketcher.Constraint("Perpendicular", 0, 1))
sketch11.addConstraint(Sketcher.Constraint("Perpendicular", 1, 2))
sketch11.addConstraint(Sketcher.Constraint("Perpendicular", 2, 3))
sketch11.addConstraint(Sketcher.Constraint("Perpendicular", 3, 4))
sketch11.addConstraint(Sketcher.Constraint("Parallel", 4, 6))
sketch11.addConstraint(Sketcher.Constraint("Perpendicular", 6, 7))
sketch11.addConstraint(Sketcher.Constraint("Parallel", 7, 8))
sketch11.addConstraint(Sketcher.Constraint("Equal", 2, 4))
sketch11.addConstraint(Sketcher.Constraint("Equal", 3, 7))
sketch11.addConstraint(Sketcher.Constraint("Angle", 0, Q("60 deg")))
sketch11.addConstraint(Sketcher.Constraint("Radius", 5, 1.0))
sketch11.addConstraint(Sketcher.Constraint("DistanceY", 7, 2, 5, 1, Q("0.0963999 in")))
sketch11.addConstraint(Sketcher.Constraint("Distance", 0, 1.25))
sketch11.addConstraint(Sketcher.Constraint("Distance", 8, 6.78))
sketch11.addConstraint(Sketcher.Constraint("DistanceY", -1, 1, 8, 1, 15.291))
sketch11.addConstraint(Sketcher.Constraint("DistanceX", 5, 3, 1, 2, 3.639601))
sketch11.addConstraint(Sketcher.Constraint("DistanceY", 1, 2, 4, 2, 2.39))
sketch11.addConstraint(Sketcher.Constraint("DistanceX", 0, 2, 8, 1, 3.5))
sketch11.addConstraint(Sketcher.Constraint("DistanceX", 0, 2, -1, 1, 29.984789))
sketch11.addConstraint(Sketcher.Constraint("DistanceY", -1, 1, 2, 2, 8.64629))
groove7 = body.newObject("PartDesign::Groove", "Groove006")
groove7.Profile = sketch11
groove7.ReferenceAxis = (sketch11, ["Axis0"])
groove7.Angle = 360

# Sketch on YZ plane
sketch12 = body.newObject("Sketcher::SketchObject", "Sketch011")
sketch12.AttachmentSupport = (doc.getObject("YZ_Plane"), [""])
sketch12.MapMode = "FlatFace"
sketch12.AttachmentOffset = App.Placement(App.Vector(0, 0, -0.866 * 25.4), App.Rotation())
sketch12.addGeometry(Part.Circle(App.Vector(-18.2, 10.5, 0), App.Vector(0, 0, 1), 2.7), False)
sketch12.addConstraint(Sketcher.Constraint("Diameter", 0, Q("0.216 in")))
sketch12.addConstraint(Sketcher.Constraint("DistanceX", 0, 3, -1, 1, Q("0.716 in")))
sketch12.addConstraint(Sketcher.Constraint("DistanceY", -1, 1, 0, 3, 10.49))
pad3 = body.newObject("PartDesign::Pad", "Pad002")
pad3.Profile = sketch12
pad3.Length = Q("0.118 in")
pad3.Reversed = True

# Sketch on YZ plane
sketch13 = body.newObject("Sketcher::SketchObject", "Sketch012")
sketch13.AttachmentSupport = (doc.getObject("YZ_Plane"), [""])
sketch13.MapMode = "FlatFace"
sketch13.AttachmentOffset = App.Placement(App.Vector(0, 0, -0.984 * 25.4), App.Rotation())
sketch13.addGeometry(Part.LineSegment(App.Vector(-18.2, 11.9, 0), App.Vector(-16.9, 11.2, 0)), False)
sketch13.addGeometry(Part.LineSegment(App.Vector(-16.9, 11.2, 0), App.Vector(-16.9, 9.8, 0)), False)
sketch13.addGeometry(Part.LineSegment(App.Vector(-16.9, 9.8, 0), App.Vector(-18.2, 9.1, 0)), False)
sketch13.addGeometry(Part.LineSegment(App.Vector(-18.2, 9.1, 0), App.Vector(-19.4, 9.8, 0)), False)
sketch13.addGeometry(Part.LineSegment(App.Vector(-19.4, 9.8, 0), App.Vector(-19.4, 11.2, 0)), False)
sketch13.addGeometry(Part.LineSegment(App.Vector(-19.4, 11.2, 0), App.Vector(-18.2, 11.9, 0)), False)
sketch13.addConstraint(Sketcher.Constraint("Coincident", 0, 2, 1, 1))
sketch13.addConstraint(Sketcher.Constraint("Coincident", 1, 2, 2, 1))
sketch13.addConstraint(Sketcher.Constraint("Coincident", 2, 2, 3, 1))
sketch13.addConstraint(Sketcher.Constraint("Coincident", 3, 2, 4, 1))
sketch13.addConstraint(Sketcher.Constraint("Coincident", 4, 2, 5, 1))
sketch13.addConstraint(Sketcher.Constraint("Coincident", 5, 2, 0, 1))
sketch13.addConstraint(Sketcher.Constraint("Vertical", 1))
sketch13.addConstraint(Sketcher.Constraint("Vertical", 4))
sketch13.addConstraint(Sketcher.Constraint("Parallel", 0, 3))
sketch13.addConstraint(Sketcher.Constraint("Parallel", 2, 5))
sketch13.addConstraint(Sketcher.Constraint("Horizontal", 1, 2, 3, 2))
sketch13.addConstraint(Sketcher.Constraint("Horizontal", 0, 2, 4, 2))
sketch13.addConstraint(Sketcher.Constraint("Vertical", 2, 2, 5, 2))
sketch13.addConstraint(Sketcher.Constraint("Angle", 0, Q("-30 deg")))
sketch13.addConstraint(Sketcher.Constraint("DistanceX", 0, 2, -1, 1, Q("0.667 in")))
sketch13.addConstraint(Sketcher.Constraint("DistanceX", 2, 2, -1, 1, Q("0.716 in")))
sketch13.addConstraint(Sketcher.Constraint("DistanceY", 1, 2, 1, 1, 1.43714))
sketch13.addConstraint(Sketcher.Constraint("DistanceY", -1, 1, 0, 2, 11.20857))
pocket2 = body.newObject("PartDesign::Pocket", "Pocket001")
pocket2.Profile = sketch13
pocket2.Length = Q("0.1 in")
pocket2.Reversed = True
doc.recompute()

chamfer = body.newObject("PartDesign::Chamfer", "Chamfer")
chamfer.Base = (pocket2, edges_at(pocket2, [(-24.994, -18.186, 13.233)]))
chamfer.Size = Q("0.015 in")
doc.recompute()

mirrored2 = body.newObject("PartDesign::Mirrored", "Mirrored001")
mirrored2.Originals = [pad3, pocket2]
mirrored2.MirrorPlane = (doc.getObject("XY_Plane"), [""])
body.Tip = mirrored2
doc.recompute()

chamfer2 = body.newObject("PartDesign::Chamfer", "Chamfer001")
chamfer2.Base = (mirrored2, edges_at(mirrored2, [(-24.994, -18.186, -13.233)]))
chamfer2.Size = Q("0.015 in")
doc.recompute()

fillet = body.newObject("PartDesign::Fillet", "Fillet")
fillet.Base = (chamfer2, edges_at(chamfer2, [(-13.221, 15.494, -22.504), (-13.221, 15.494, 22.504)]))
fillet.Radius = Q("0.193 in")

# Sketch on XZ plane
sketch14 = body.newObject("Sketcher::SketchObject", "Sketch013")
sketch14.AttachmentSupport = (doc.getObject("XZ_Plane"), [""])
sketch14.MapMode = "FlatFace"
sketch14.AttachmentOffset = App.Placement(App.Vector(0, 0, 0.787 * 25.4), App.Rotation())
sketch14.addGeometry(Part.LineSegment(App.Vector(-26.4, 0, 0), App.Vector(0, 0, 0)), False)
sketch14.addGeometry(Part.LineSegment(App.Vector(0, 0, 0), App.Vector(0, -2.9, 0)), False)
sketch14.addGeometry(Part.LineSegment(App.Vector(0, -2.9, 0), App.Vector(-26.4, -2.9, 0)), False)
sketch14.addGeometry(Part.LineSegment(App.Vector(-26.4, -2.9, 0), App.Vector(-26.4, 0, 0)), False)
sketch14.addConstraint(Sketcher.Constraint("Coincident", 0, 2, 1, 1))
sketch14.addConstraint(Sketcher.Constraint("Coincident", 1, 2, 2, 1))
sketch14.addConstraint(Sketcher.Constraint("Coincident", 2, 2, 3, 1))
sketch14.addConstraint(Sketcher.Constraint("Coincident", 3, 2, 0, 1))
sketch14.addConstraint(Sketcher.Constraint("Horizontal", 0))
sketch14.addConstraint(Sketcher.Constraint("Vertical", 1))
sketch14.addConstraint(Sketcher.Constraint("Horizontal", 2))
sketch14.addConstraint(Sketcher.Constraint("Vertical", 3))
sketch14.addConstraint(Sketcher.Constraint("Coincident", 0, 2, -1, 1))
sketch14.addConstraint(Sketcher.Constraint("DistanceX", 0, 1, 0, 2, Q("1.041 in")))
sketch14.addConstraint(Sketcher.Constraint("DistanceY", 1, 2, 1, 1, 2.8955))
groove8 = body.newObject("PartDesign::Groove", "Groove007")
groove8.Profile = sketch14
groove8.ReferenceAxis = (sketch14, ["H_Axis"])
groove8.Angle = 360
doc.recompute()

datumline = body.newObject("PartDesign::Line", "DatumLine")
datumline.Placement = App.Placement(App.Vector(0, 0, 0), App.Rotation(App.Vector(0, 0, 1), App.Vector(0, 0.865977985, 0.500082122)))
linearpattern = body.newObject("PartDesign::LinearPattern", "LinearPattern")
linearpattern.Originals = [groove8]
linearpattern.Direction = (datumline, [""])
linearpattern.Mode = "offset"
linearpattern.Offset = 34.639911
linearpattern.Occurrences = 2
body.Tip = linearpattern
doc.recompute()

datumline2 = body.newObject("PartDesign::Line", "DatumLine001")
datumline2.Placement = App.Placement(App.Vector(0, 0, 0), App.Rotation(App.Vector(0, 0, 1), App.Vector(0, 0.865977985, -0.500082122)))
linearpattern2 = body.newObject("PartDesign::LinearPattern", "LinearPattern001")
linearpattern2.Originals = [groove8]
linearpattern2.Direction = (datumline2, [""])
linearpattern2.Mode = "offset"
linearpattern2.Offset = 34.639911
linearpattern2.Occurrences = 2
body.Tip = linearpattern2
doc.recompute()

polarpattern = body.newObject("PartDesign::PolarPattern", "PolarPattern")
polarpattern.Originals = [groove5]
polarpattern.Axis = (doc.getObject("X_Axis"), [""])
polarpattern.Angle = 360
polarpattern.Occurrences = 4
body.Tip = polarpattern
body2 = doc.addObject("PartDesign::Body", "Body001")

# Sketch on XY plane
sketch15 = body2.newObject("Sketcher::SketchObject", "Sketch014")
sketch15.AttachmentSupport = (doc.getObject("XY_Plane001"), [""])
sketch15.MapMode = "FlatFace"
sketch15.AttachmentOffset = App.Placement(App.Vector(0, 0, 10.49), App.Rotation())
sketch15.addGeometry(Part.Circle(App.Vector(-25.9, -13.4, 0), App.Vector(0, 0, 1), 0.9), False)
sketch15.addGeometry(Part.LineSegment(App.Vector(-25.9, -18.2, 0), App.Vector(-15.9, -18.2, 0)), True)  # axis
sketch15.addConstraint(Sketcher.Constraint("Horizontal", 1))
sketch15.addConstraint(Sketcher.Constraint("Vertical", 0, 3, 1, 1))
sketch15.addConstraint(Sketcher.Constraint("Diameter", 0, Q("0.07 in")))
sketch15.addConstraint(Sketcher.Constraint("DistanceX", 0, 3, -1, 1, Q("1.018 in")))
sketch15.addConstraint(Sketcher.Constraint("DistanceY", 1, 1, -1, 1, Q("0.716 in")))
sketch15.addConstraint(Sketcher.Constraint("DistanceX", 1, 1, 1, 2, 10.0))
sketch15.addConstraint(Sketcher.Constraint("DistanceY", 0, 3, -1, 1, Q("0.5265 in")))
revolution2 = body2.newObject("PartDesign::Revolution", "Revolution001")
revolution2.Profile = sketch15
revolution2.ReferenceAxis = (sketch15, ["Axis0"])
revolution2.Angle = 360
body3 = doc.addObject("PartDesign::Body", "Body002")
doc.recompute()

mirroring = doc.addObject("Part::Mirroring", "Mirroring")
mirroring.Source = body2
mirroring.Base = App.Vector(0, 0, 0)
mirroring.Normal = App.Vector(0, 0, 1)
body3.BaseFeature = mirroring
doc.recompute()
mirroring.Visibility = False

doc.recompute()
